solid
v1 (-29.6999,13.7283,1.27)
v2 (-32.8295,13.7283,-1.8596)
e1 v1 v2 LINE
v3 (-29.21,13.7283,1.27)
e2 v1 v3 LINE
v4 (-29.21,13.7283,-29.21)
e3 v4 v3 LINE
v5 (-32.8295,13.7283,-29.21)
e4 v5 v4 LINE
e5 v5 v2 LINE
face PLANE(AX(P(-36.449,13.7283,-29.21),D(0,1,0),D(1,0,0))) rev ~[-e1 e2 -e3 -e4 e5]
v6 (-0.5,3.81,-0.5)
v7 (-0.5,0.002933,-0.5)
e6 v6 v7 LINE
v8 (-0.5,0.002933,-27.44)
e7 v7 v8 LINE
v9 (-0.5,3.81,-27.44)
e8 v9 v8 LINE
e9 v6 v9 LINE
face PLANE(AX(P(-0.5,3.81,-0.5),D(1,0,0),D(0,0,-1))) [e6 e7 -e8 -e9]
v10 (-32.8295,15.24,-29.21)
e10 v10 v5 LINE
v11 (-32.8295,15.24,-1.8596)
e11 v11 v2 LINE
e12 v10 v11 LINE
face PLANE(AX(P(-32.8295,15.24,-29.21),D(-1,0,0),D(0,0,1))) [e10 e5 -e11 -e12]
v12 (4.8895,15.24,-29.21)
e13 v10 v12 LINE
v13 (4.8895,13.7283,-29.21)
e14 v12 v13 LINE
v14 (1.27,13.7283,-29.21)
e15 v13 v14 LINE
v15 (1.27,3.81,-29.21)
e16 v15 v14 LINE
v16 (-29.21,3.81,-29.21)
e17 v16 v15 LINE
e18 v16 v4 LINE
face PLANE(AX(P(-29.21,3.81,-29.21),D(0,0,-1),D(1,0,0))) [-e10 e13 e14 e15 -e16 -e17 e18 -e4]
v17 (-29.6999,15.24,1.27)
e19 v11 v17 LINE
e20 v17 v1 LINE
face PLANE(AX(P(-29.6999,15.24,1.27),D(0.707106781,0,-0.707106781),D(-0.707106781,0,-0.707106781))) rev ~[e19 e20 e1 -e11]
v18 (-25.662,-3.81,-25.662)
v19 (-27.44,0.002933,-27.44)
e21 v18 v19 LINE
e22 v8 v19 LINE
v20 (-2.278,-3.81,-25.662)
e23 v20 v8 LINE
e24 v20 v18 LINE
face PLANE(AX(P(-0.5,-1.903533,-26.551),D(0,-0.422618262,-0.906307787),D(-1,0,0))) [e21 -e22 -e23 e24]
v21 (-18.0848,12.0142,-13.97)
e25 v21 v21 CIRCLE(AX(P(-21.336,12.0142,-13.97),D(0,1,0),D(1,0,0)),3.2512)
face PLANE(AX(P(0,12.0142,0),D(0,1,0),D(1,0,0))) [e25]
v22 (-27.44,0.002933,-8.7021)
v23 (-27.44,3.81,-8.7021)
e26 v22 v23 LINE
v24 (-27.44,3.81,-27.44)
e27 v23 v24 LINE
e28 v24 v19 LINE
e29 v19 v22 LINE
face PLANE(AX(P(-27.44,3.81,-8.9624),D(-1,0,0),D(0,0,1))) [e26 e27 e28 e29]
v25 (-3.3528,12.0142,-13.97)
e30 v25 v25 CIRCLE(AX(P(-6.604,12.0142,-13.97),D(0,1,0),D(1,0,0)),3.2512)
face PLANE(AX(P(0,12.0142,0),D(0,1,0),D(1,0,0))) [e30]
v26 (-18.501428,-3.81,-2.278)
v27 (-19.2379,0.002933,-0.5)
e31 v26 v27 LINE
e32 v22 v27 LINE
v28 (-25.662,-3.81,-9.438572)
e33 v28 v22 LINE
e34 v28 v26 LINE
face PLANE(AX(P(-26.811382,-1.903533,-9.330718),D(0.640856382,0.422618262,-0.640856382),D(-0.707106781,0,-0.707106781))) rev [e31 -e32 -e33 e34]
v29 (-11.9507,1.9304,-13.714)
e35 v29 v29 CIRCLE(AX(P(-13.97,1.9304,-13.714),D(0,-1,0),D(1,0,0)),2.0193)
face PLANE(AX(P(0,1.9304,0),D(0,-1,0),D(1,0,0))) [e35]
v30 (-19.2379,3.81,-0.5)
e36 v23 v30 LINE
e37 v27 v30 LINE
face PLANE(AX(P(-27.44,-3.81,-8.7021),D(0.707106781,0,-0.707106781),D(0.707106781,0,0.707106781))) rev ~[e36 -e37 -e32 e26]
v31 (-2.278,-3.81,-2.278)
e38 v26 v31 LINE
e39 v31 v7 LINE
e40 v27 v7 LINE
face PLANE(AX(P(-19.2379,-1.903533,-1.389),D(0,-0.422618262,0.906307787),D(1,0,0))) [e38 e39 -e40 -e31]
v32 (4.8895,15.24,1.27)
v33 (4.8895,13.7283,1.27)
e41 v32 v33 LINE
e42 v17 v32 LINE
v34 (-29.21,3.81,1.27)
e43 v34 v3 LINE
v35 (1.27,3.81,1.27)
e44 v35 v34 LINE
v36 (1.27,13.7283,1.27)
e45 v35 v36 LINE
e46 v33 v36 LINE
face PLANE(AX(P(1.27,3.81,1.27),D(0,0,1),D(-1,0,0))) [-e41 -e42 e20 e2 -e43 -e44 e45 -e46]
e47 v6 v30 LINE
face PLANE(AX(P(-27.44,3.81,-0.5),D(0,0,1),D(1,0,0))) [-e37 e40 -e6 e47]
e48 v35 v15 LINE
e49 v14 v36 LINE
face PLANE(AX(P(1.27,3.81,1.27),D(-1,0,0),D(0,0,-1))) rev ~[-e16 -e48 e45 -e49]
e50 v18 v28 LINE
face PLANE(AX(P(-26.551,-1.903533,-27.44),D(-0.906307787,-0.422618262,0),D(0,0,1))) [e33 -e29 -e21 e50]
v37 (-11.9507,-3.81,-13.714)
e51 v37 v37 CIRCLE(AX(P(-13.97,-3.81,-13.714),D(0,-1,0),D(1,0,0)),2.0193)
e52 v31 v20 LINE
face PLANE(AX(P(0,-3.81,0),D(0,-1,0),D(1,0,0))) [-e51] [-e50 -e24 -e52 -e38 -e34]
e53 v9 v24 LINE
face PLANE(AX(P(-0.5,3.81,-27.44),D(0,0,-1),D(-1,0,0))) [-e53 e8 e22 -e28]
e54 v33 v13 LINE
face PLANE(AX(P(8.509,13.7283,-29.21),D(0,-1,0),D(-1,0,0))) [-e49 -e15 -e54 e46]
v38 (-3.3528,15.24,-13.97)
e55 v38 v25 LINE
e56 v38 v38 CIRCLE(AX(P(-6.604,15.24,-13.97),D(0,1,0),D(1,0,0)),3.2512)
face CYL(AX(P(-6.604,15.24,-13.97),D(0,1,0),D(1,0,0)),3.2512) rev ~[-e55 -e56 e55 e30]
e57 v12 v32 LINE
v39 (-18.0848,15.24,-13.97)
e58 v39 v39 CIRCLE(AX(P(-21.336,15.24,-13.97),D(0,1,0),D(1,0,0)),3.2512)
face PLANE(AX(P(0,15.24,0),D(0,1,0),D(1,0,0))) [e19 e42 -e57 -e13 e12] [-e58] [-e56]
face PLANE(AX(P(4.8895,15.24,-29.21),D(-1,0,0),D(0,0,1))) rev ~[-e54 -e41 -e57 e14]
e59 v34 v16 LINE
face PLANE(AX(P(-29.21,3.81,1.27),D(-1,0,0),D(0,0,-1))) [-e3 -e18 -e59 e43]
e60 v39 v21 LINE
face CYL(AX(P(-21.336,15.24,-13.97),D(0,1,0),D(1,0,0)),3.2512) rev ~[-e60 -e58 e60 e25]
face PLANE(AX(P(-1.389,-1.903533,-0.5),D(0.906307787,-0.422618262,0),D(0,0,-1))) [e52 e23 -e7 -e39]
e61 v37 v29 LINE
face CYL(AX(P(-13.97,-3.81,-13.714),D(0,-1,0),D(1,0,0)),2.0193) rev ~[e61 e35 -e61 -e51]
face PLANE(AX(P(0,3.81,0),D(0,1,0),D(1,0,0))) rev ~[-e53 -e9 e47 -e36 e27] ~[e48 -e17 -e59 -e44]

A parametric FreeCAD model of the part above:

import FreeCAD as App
import Part
import Sketcher
from FreeCAD import Vector
Q = App.Units.Quantity


def edges_at(feature, points):
    """Names of the edges that pass closest to the given points."""
    edges = feature.Shape.Edges
    near = lambda p: min(range(len(edges)), key=lambda i: edges[i].distToShape(Part.Vertex(*p))[0])
    return sorted({f"Edge{near(p) + 1}" for p in points})

doc = App.newDocument("Part")
body = doc.addObject("PartDesign::Body", "Body")

# Sketch on XZ plane
sketch1 = body.newObject("Sketcher::SketchObject", "Sketch")
sketch1.AttachmentSupport = (doc.getObject("XZ_Plane"), [""])
sketch1.MapMode = "FlatFace"
sketch1.AttachmentOffset = App.Placement(Vector(0, 0, -0.15 * 25.4), App.Rotation())
sketch1.addGeometry(Part.LineSegment(Vector(1, -29, 0), Vector(-29, -29, 0)), False)
sketch1.addGeometry(Part.LineSegment(Vector(-29, -29, 0), Vector(-29, 1, 0)), False)
sketch1.addGeometry(Part.LineSegment(Vector(-29, 1, 0), Vector(1, 1, 0)), False)
sketch1.addGeometry(Part.LineSegment(Vector(1, 1, 0), Vector(1, -29, 0)), False)
sketch1.addConstraint(Sketcher.Constraint("Coincident", 0, 2, 1, 1))
sketch1.addConstraint(Sketcher.Constraint("Coincident", 1, 2, 2, 1))
sketch1.addConstraint(Sketcher.Constraint("Coincident", 2, 2, 3, 1))
sketch1.addConstraint(Sketcher.Constraint("Coincident", 3, 2, 0, 1))
sketch1.addConstraint(Sketcher.Constraint("Horizontal", 0))
sketch1.addConstraint(Sketcher.Constraint("Vertical", 1))
sketch1.addConstraint(Sketcher.Constraint("Horizontal", 2))
sketch1.addConstraint(Sketcher.Constraint("Vertical", 3))
sketch1.addConstraint(Sketcher.Constraint("Equal", 2, 1))
sketch1.addConstraint(Sketcher.Constraint("DistanceX", 0, 2, 0, 1, Q("1.2 in")))
sketch1.addConstraint(Sketcher.Constraint("DistanceX", 0, 2, -1, 1, Q("1.15 in")))
sketch1.addConstraint(Sketcher.Constraint("DistanceY", 0, 2, -1, 1, Q("1.15 in")))
pad1 = body.newObject("PartDesign::Pad", "Pad")
pad1.Profile = sketch1
pad1.Length = Q("0.45 in")
pad1.Reversed = True

# Sketch on XY plane
sketch2 = body.newObject("Sketcher::SketchObject", "Sketch001")
sketch2.AttachmentSupport = (doc.getObject("XY_Plane"), [""])
sketch2.MapMode = "FlatFace"
sketch2.AttachmentOffset = App.Placement(Vector(0, 0, -1.15 * 25.4), App.Rotation())
sketch2.addGeometry(Part.LineSegment(Vector(-36.4, 15.2, 0), Vector(-29.2, 15.2, 0)), False)
sketch2.addGeometry(Part.LineSegment(Vector(-29.2, 15.2, 0), Vector(-29.2, 13.7, 0)), False)
sketch2.addGeometry(Part.LineSegment(Vector(-29.2, 13.7, 0), Vector(-36.4, 13.7, 0)), False)
sketch2.addGeometry(Part.LineSegment(Vector(-36.4, 13.7, 0), Vector(-36.4, 15.2, 0)), False)
sketch2.addGeometry(Part.LineSegment(Vector(1.3, 13.7, 0), Vector(1.3, 15.2, 0)), False)
sketch2.addGeometry(Part.LineSegment(Vector(1.3, 15.2, 0), Vector(8.5, 15.2, 0)), False)
sketch2.addGeometry(Part.LineSegment(Vector(8.5, 15.2, 0), Vector(8.5, 13.7, 0)), False)
sketch2.addGeometry(Part.LineSegment(Vector(8.5, 13.7, 0), Vector(1.3, 13.7, 0)), False)
sketch2.addConstraint(Sketcher.Constraint("Coincident", 0, 2, 1, 1))
sketch2.addConstraint(Sketcher.Constraint("Coincident", 1, 2, 2, 1))
sketch2.addConstraint(Sketcher.Constraint("Coincident", 2, 2, 3, 1))
sketch2.addConstraint(Sketcher.Constraint("Coincident", 3, 2, 0, 1))
sketch2.addConstraint(Sketcher.Constraint("Coincident", 4, 2, 5, 1))
sketch2.addConstraint(Sketcher.Constraint("Coincident", 5, 2, 6, 1))
sketch2.addConstraint(Sketcher.Constraint("Coincident", 6, 2, 7, 1))
sketch2.addConstraint(Sketcher.Constraint("Coincident", 7, 2, 4, 1))
sketch2.addConstraint(Sketcher.Constraint("Horizontal", 0))
sketch2.addConstraint(Sketcher.Constraint("Vertical", 1))
sketch2.addConstraint(Sketcher.Constraint("Horizontal", 2))
sketch2.addConstraint(Sketcher.Constraint("Vertical", 3))
sketch2.addConstraint(Sketcher.Constraint("Vertical", 4))
sketch2.addConstraint(Sketcher.Constraint("Horizontal", 5))
sketch2.addConstraint(Sketcher.Constraint("Vertical", 6))
sketch2.addConstraint(Sketcher.Constraint("Horizontal", 7))
sketch2.addConstraint(Sketcher.Constraint("Horizontal", 3, 2, 4, 2))
sketch2.addConstraint(Sketcher.Constraint("Horizontal", 2, 2, 6, 2))
sketch2.addConstraint(Sketcher.Constraint("Equal", 2, 5))
sketch2.addConstraint(Sketcher.Constraint("DistanceX", 0, 1, 0, 2, Q("0.285 in")))
sketch2.addConstraint(Sketcher.Constraint("DistanceY", -1, 1, 0, 2, Q("0.6 in")))
sketch2.addConstraint(Sketcher.Constraint("DistanceX", 0, 2, 4, 2, Q("1.2 in")))
sketch2.addConstraint(Sketcher.Constraint("DistanceX", 0, 2, -1, 1, Q("1.15 in")))
sketch2.addConstraint(Sketcher.Constraint("DistanceY", 1, 2, 1, 1, Q("1.5117 mm")))
pad2 = body.newObject("PartDesign::Pad", "Pad001")
pad2.Profile = sketch2
pad2.Length = Q("1.2 in")

# Sketch on XZ plane
sketch3 = body.newObject("Sketcher::SketchObject", "Sketch002")
sketch3.AttachmentSupport = (doc.getObject("XZ_Plane"), [""])
sketch3.MapMode = "FlatFace"
sketch3.AttachmentOffset = App.Placement(Vector(0, 0, -0.6 * 25.4), App.Rotation())
sketch3.addGeometry(Part.Circle(Vector(-21.3, -14, 0), Vector(0, 0, 1), 3.3), False)
sketch3.addGeometry(Part.Circle(Vector(-6.6, -14, 0), Vector(0, 0, 1), 3.3), False)
sketch3.addConstraint(Sketcher.Constraint("Equal", 0, 1))
sketch3.addConstraint(Sketcher.Constraint("Horizontal", 0, 3, 1, 3))
sketch3.addConstraint(Sketcher.Constraint("DistanceX", 0, 3, 1, 3, Q("0.58 in")))
sketch3.addConstraint(Sketcher.Constraint("Diameter", 0, Q("0.256 in")))
sketch3.addConstraint(Sketcher.Constraint("DistanceX", 0, 3, -1, 1, Q("0.84 in")))
sketch3.addConstraint(Sketcher.Constraint("DistanceY", 0, 3, -1, 1, Q("0.55 in")))
pocket1 = body.newObject("PartDesign::Pocket", "Pocket")
pocket1.Profile = sketch3
pocket1.Length = Q("0.127 in")
pocket1.Reversed = True

# Sketch on XZ plane
sketch4 = body.newObject("Sketcher::SketchObject", "Sketch003")
sketch4.AttachmentSupport = (doc.getObject("XZ_Plane"), [""])
sketch4.MapMode = "FlatFace"
sketch4.AttachmentOffset = App.Placement(Vector(0, 0, -0.6 * 25.4), App.Rotation())
sketch4.addGeometry(Part.LineSegment(Vector(-36.4, 1.3, 0), Vector(-32.8, 1.3, 0)), False)
sketch4.addGeometry(Part.LineSegment(Vector(-32.8, 1.3, 0), Vector(-32.8, -29.2, 0)), False)
sketch4.addGeometry(Part.LineSegment(Vector(-32.8, -29.2, 0), Vector(-36.4, -29.2, 0)), False)
sketch4.addGeometry(Part.LineSegment(Vector(-36.4, -29.2, 0), Vector(-36.4, 1.3, 0)), False)
sketch4.addGeometry(Part.LineSegment(Vector(4.9, -29.2, 0), Vector(4.9, 1.3, 0)), False)
sketch4.addGeometry(Part.LineSegment(Vector(4.9, 1.3, 0), Vector(8.5, 1.3, 0)), False)
sketch4.addGeometry(Part.LineSegment(Vector(8.5, 1.3, 0), Vector(8.5, -29.2, 0)), False)
sketch4.addGeometry(Part.LineSegment(Vector(8.5, -29.2, 0), Vector(4.9, -29.2, 0)), False)
sketch4.addConstraint(Sketcher.Constraint("Coincident", 0, 2, 1, 1))
sketch4.addConstraint(Sketcher.Constraint("Coincident", 1, 2, 2, 1))
sketch4.addConstraint(Sketcher.Constraint("Coincident", 2, 2, 3, 1))
sketch4.addConstraint(Sketcher.Constraint("Coincident", 3, 2, 0, 1))
sketch4.addConstraint(Sketcher.Constraint("Coincident", 4, 2, 5, 1))
sketch4.addConstraint(Sketcher.Constraint("Coincident", 5, 2, 6, 1))
sketch4.addConstraint(Sketcher.Constraint("Coincident", 6, 2, 7, 1))
sketch4.addConstraint(Sketcher.Constraint("Coincident", 7, 2, 4, 1))
sketch4.addConstraint(Sketcher.Constraint("Horizontal", 0))
sketch4.addConstraint(Sketcher.Constraint("Vertical", 1))
sketch4.addConstraint(Sketcher.Constraint("Horizontal", 2))
sketch4.addConstraint(Sketcher.Constraint("Vertical", 3))
sketch4.addConstraint(Sketcher.Constraint("Vertical", 4))
sketch4.addConstraint(Sketcher.Constraint("Horizontal", 5))
sketch4.addConstraint(Sketcher.Constraint("Vertical", 6))
sketch4.addConstraint(Sketcher.Constraint("Horizontal", 7))
sketch4.addConstraint(Sketcher.Constraint("Horizontal", 3, 2, 4, 2))
sketch4.addConstraint(Sketcher.Constraint("Horizontal", 2, 2, 6, 2))
sketch4.addConstraint(Sketcher.Constraint("Equal", 2, 5))
sketch4.addConstraint(Sketcher.Constraint("DistanceY", 1, 2, 1, 1, Q("1.2 in")))
sketch4.addConstraint(Sketcher.Constraint("DistanceY", -1, 1, 0, 2, Q("0.05 in")))
sketch4.addConstraint(Sketcher.Constraint("DistanceX", 3, 2, 5, 2, Q("1.77 in")))
sketch4.addConstraint(Sketcher.Constraint("DistanceX", 0, 1, 0, 2, Q("0.1425 in")))
sketch4.addConstraint(Sketcher.Constraint("DistanceX", 2, 2, -1, 1, Q("1.435 in")))
pocket2 = body.newObject("PartDesign::Pocket", "Pocket001")
pocket2.Profile = sketch4
pocket2.Length = Q("1 in")
pocket2.Reversed = True

# Sketch on XZ plane
sketch5 = body.newObject("Sketcher::SketchObject", "Sketch004")
sketch5.AttachmentSupport = (doc.getObject("XZ_Plane"), [""])
sketch5.MapMode = "FlatFace"
sketch5.AttachmentOffset = App.Placement(Vector(0, 0, -0.15 * 25.4), App.Rotation())
sketch5.addGeometry(Part.LineSegment(Vector(-27, 0, 0), Vector(-27, -27, 0)), False)
sketch5.addGeometry(Part.LineSegment(Vector(-27, -27, 0), Vector(0, -27, 0)), False)
sketch5.addGeometry(Part.LineSegment(Vector(0, -27, 0), Vector(0, 0, 0)), False)
sketch5.addGeometry(Part.LineSegment(Vector(0, 0, 0), Vector(-27, 0, 0)), False)
sketch5.addConstraint(Sketcher.Constraint("Coincident", 0, 2, 1, 1))
sketch5.addConstraint(Sketcher.Constraint("Coincident", 1, 2, 2, 1))
sketch5.addConstraint(Sketcher.Constraint("Coincident", 2, 2, 3, 1))
sketch5.addConstraint(Sketcher.Constraint("Coincident", 3, 2, 0, 1))
sketch5.addConstraint(Sketcher.Constraint("Vertical", 0))
sketch5.addConstraint(Sketcher.Constraint("Horizontal", 1))
sketch5.addConstraint(Sketcher.Constraint("Vertical", 2))
sketch5.addConstraint(Sketcher.Constraint("Horizontal", 3))
sketch5.addConstraint(Sketcher.Constraint("Equal", 3, 0))
sketch5.addConstraint(Sketcher.Constraint("DistanceX", 1, 1, 1, 2, Q("26.94 mm")))
sketch5.addConstraint(Sketcher.Constraint("DistanceX", 0, 2, -1, 1, Q("27.44 mm")))
sketch5.addConstraint(Sketcher.Constraint("DistanceY", 0, 2, -1, 1, Q("27.44 mm")))
pad3 = body.newObject("PartDesign::Pad", "Pad002")
pad3.Profile = sketch5
pad3.Length = Q("0.3 in")

# Sketch on XZ plane
sketch6 = body.newObject("Sketcher::SketchObject", "Sketch005")
sketch6.AttachmentSupport = (doc.getObject("XZ_Plane"), [""])
sketch6.MapMode = "FlatFace"
sketch6.AttachmentOffset = App.Placement(Vector(0, 0, 0.15 * 25.4), App.Rotation())
sketch6.addGeometry(Part.Circle(Vector(-14, -13.7, 0), Vector(0, 0, 1), 2), False)
sketch6.addConstraint(Sketcher.Constraint("Diameter", 0, Q("0.159 in")))
sketch6.addConstraint(Sketcher.Constraint("DistanceX", 0, 3, -1, 1, Q("0.55 in")))
sketch6.addConstraint(Sketcher.Constraint("DistanceY", 0, 3, -1, 1, Q("13.714 mm")))
pocket3 = body.newObject("PartDesign::Pocket", "Pocket002")
pocket3.Profile = sketch6
pocket3.Length = Q("0.226 in")

# Sketch on XZ plane
sketch7 = body.newObject("Sketcher::SketchObject", "Sketch006")
sketch7.AttachmentSupport = (doc.getObject("XZ_Plane"), [""])
sketch7.MapMode = "FlatFace"
sketch7.AttachmentOffset = App.Placement(Vector(0, 0, 0.15 * 25.4), App.Rotation())
sketch7.addGeometry(Part.LineSegment(Vector(-27, -9, 0), Vector(-19, 0, 0)), False)
sketch7.addGeometry(Part.LineSegment(Vector(-19, 0, 0), Vector(-27, 0, 0)), False)
sketch7.addGeometry(Part.LineSegment(Vector(-27, 0, 0), Vector(-27, -9, 0)), False)
sketch7.addConstraint(Sketcher.Constraint("Coincident", 0, 2, 1, 1))
sketch7.addConstraint(Sketcher.Constraint("Coincident", 1, 2, 2, 1))
sketch7.addConstraint(Sketcher.Constraint("Coincident", 2, 2, 0, 1))
sketch7.addConstraint(Sketcher.Constraint("Horizontal", 1))
sketch7.addConstraint(Sketcher.Constraint("Vertical", 2))
sketch7.addConstraint(Sketcher.Constraint("Equal", 1, 2))
sketch7.addConstraint(Sketcher.Constraint("DistanceX", 1, 2, 1, 1, Q("8.202 mm")))
sketch7.addConstraint(Sketcher.Constraint("DistanceX", 0, 2, -1, 1, Q("0.7574 in")))
sketch7.addConstraint(Sketcher.Constraint("DistanceY", 2, 2, -1, 1, Q("0.3426 in")))
pocket4 = body.newObject("PartDesign::Pocket", "Pocket003")
pocket4.Profile = sketch7
pocket4.Length = Q("0.3 in")
doc.recompute()

chamfer = body.newObject("PartDesign::Chamfer", "Chamfer")
chamfer.Base = (pocket4, edges_at(pocket4, [
    (-9.869, -3.81, -0.5),
    (-23.339, -3.81, -4.601),
    (-27.44, -3.81, -18.071),
    (-13.97, -3.81, -27.44),
    (-0.5, -3.81, -13.97),
]))
chamfer.ChamferType = "Distance and Angle"
chamfer.Size = Q("0.07 in")
chamfer.Angle = 65
chamfer.FlipDirection = True

# Sketch on XZ plane
sketch8 = body.newObject("Sketcher::SketchObject", "Sketch007")
sketch8.AttachmentSupport = (doc.getObject("XZ_Plane"), [""])
sketch8.MapMode = "FlatFace"
sketch8.AttachmentOffset = App.Placement(Vector(0, 0, -0.6 * 25.4), App.Rotation())
sketch8.addGeometry(Part.LineSegment(Vector(-32.8, 1.3, 0), Vector(-29.7, 1.3, 0)), False)
sketch8.addGeometry(Part.LineSegment(Vector(-29.7, 1.3, 0), Vector(-32.8, -1.9, 0)), False)
sketch8.addGeometry(Part.LineSegment(Vector(-32.8, -1.9, 0), Vector(-32.8, 1.3, 0)), False)
sketch8.addConstraint(Sketcher.Constraint("Coincident", 0, 2, 1, 1))
sketch8.addConstraint(Sketcher.Constraint("Coincident", 1, 2, 2, 1))
sketch8.addConstraint(Sketcher.Constraint("Coincident", 2, 2, 0, 1))
sketch8.addConstraint(Sketcher.Constraint("Horizontal", 0))
sketch8.addConstraint(Sketcher.Constraint("Vertical", 2))
sketch8.addConstraint(Sketcher.Constraint("Equal", 0, 2))
sketch8.addConstraint(Sketcher.Constraint("DistanceY", -1, 1, 0, 2, Q("0.05 in")))
sketch8.addConstraint(Sketcher.Constraint("DistanceX", 0, 1, 0, 2, Q("3.1296 mm")))
sketch8.addConstraint(Sketcher.Constraint("DistanceX", 1, 2, -1, 1, Q("1.2925 in")))
pocket5 = body.newObject("PartDesign::Pocket", "Pocket004")
pocket5.Profile = sketch8
pocket5.Length = 1.5117
pocket5.Reversed = True

doc.recompute()
